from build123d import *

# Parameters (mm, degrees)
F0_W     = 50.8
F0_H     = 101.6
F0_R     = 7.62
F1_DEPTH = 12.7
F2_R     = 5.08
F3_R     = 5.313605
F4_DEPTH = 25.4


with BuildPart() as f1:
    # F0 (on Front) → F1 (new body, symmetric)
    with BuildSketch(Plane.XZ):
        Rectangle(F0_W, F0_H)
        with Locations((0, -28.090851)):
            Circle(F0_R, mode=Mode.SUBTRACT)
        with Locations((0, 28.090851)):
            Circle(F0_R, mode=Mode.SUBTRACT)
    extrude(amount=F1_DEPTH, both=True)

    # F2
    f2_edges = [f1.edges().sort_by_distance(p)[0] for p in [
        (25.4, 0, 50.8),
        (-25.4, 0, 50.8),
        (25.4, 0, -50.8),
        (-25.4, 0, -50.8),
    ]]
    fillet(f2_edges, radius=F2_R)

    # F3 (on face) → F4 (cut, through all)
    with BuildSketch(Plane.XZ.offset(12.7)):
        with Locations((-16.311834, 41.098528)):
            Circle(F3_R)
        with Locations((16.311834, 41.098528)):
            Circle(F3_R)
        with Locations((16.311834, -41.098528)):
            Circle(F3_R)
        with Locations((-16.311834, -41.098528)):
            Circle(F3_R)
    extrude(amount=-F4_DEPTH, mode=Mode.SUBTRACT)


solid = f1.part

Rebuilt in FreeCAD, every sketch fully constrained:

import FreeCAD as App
import Part
import Sketcher

V = App.Vector
Q = App.Units.Quantity


def edges_at(feature, points):
    """Names of the edges that pass closest to the given points."""
    edges = feature.Shape.Edges
    near = lambda p: min(range(len(edges)), key=lambda i: edges[i].distToShape(Part.Vertex(*p))[0])
    return sorted({f"Edge{near(p) + 1}" for p in points})


def add_polygon(sketch, points):
    """Adds a closed chain of lines whose ends are joined by coincident constraints."""
    first, n = sketch.GeometryCount, len(points)
    for a, b in zip(points, points[1:] + points[:1]):
        sketch.addGeometry(Part.LineSegment(App.Vector(*a, 0), App.Vector(*b, 0)), False)
    for i in range(n):
        sketch.addConstraint(Sketcher.Constraint("Coincident", first + i, 2, first + (i + 1) % n, 1))

doc = App.newDocument("Part")
body = doc.addObject("PartDesign::Body", "Body")

# Sketch on XZ plane
sketch1 = body.newObject("Sketcher::SketchObject", "Sketch")
sketch1.AttachmentSupport = (doc.getObject("XZ_Plane"), [""])
sketch1.MapMode = "FlatFace"
add_polygon(sketch1, [(-25, 51), (-25, -51), (25, -51), (25, 51)])  # lines 0-3
sketch1.addGeometry(Part.Circle(V(0, -28, 0), V(0, 0, 1), 8), False)  # 4
sketch1.addGeometry(Part.Circle(V(0, 28, 0), V(0, 0, 1), 8), False)  # 5
sketch1.addConstraint([
    Sketcher.Constraint("Vertical", 0),
    Sketcher.Constraint("Horizontal", 1),
    Sketcher.Constraint("Vertical", 2),
    Sketcher.Constraint("Horizontal", 3),
    Sketcher.Constraint("Equal", 4, 5),
    Sketcher.Constraint("Symmetric", 4, 3, 5, 3, -1, 1),
    Sketcher.Constraint("Symmetric", 0, 2, 2, 2, -1, 1),
    Sketcher.Constraint("PointOnObject", 4, 3, -2),
    Sketcher.Constraint("Diameter", 4, Q("0.6 in")),
    Sketcher.Constraint("DistanceX", 1, 1, 1, 2, Q("2 in")),
    Sketcher.Constraint("DistanceY", 0, 2, 0, 1, Q("4 in")),
    Sketcher.Constraint("DistanceY", 4, 3, -1, 1, 28.090851),
])
pad1 = body.newObject("PartDesign::Pad", "Pad")
pad1.Profile = sketch1
pad1.Length = Q("1 in")
pad1.Midplane = True
doc.recompute()

fillet = body.newObject("PartDesign::Fillet", "Fillet")
fillet.Base = (pad1, edges_at(pad1, [
    (25.4, 0, 50.8),
    (-25.4, 0, 50.8),
    (25.4, 0, -50.8),
    (-25.4, 0, -50.8),
]))
fillet.Radius = Q("0.2 in")

# Sketch on XZ plane
sketch2 = body.newObject("Sketcher::SketchObject", "Sketch001")
sketch2.AttachmentSupport = (doc.getObject("XZ_Plane"), [""])
sketch2.MapMode = "FlatFace"
sketch2.AttachmentOffset = App.Placement(V(0, 0, 0.5 * 25.4), App.Rotation())
sketch2.addGeometry([
    Part.Circle(V(-16, 41, 0), V(0, 0, 1), 5),
    Part.Circle(V(16, 41, 0), V(0, 0, 1), 5),
    Part.Circle(V(16, -41, 0), V(0, 0, 1), 5),
    Part.Circle(V(-16, -41, 0), V(0, 0, 1), 5),
], False)
sketch2.addConstraint([
    Sketcher.Constraint("Equal", 0, 1),
    Sketcher.Constraint("Equal", 1, 2),
    Sketcher.Constraint("Equal", 2, 3),
    Sketcher.Constraint("Symmetric", 0, 3, 2, 3, -1, 1),
    Sketcher.Constraint("Symmetric", 1, 3, 3, 3, -1, 1),
    Sketcher.Constraint("Symmetric", 0, 3, 1, 3, -2),
    Sketcher.Constraint("Diameter", 0, 10.62721),
    Sketcher.Constraint("DistanceY", -1, 1, 0, 3, 41.098528),
    Sketcher.Constraint("DistanceX", 0, 3, 1, 3, 32.623668),
])
pocket1 = body.newObject("PartDesign::Pocket", "Pocket")
pocket1.Profile = sketch2
pocket1.Type = "ThroughAll"

doc.recompute()
